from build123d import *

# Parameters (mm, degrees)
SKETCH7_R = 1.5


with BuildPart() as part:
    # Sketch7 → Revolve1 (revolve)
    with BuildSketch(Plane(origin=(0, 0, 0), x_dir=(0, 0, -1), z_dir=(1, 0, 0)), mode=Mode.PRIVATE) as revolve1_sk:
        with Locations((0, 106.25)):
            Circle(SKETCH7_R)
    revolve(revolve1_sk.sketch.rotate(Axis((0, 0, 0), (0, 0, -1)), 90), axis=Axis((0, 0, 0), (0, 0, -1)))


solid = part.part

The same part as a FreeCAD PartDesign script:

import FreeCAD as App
import Part
import Sketcher
from FreeCAD import Vector
Q = App.Units.Quantity

doc = App.newDocument("Part")
body = doc.addObject("PartDesign::Body", "Body")

# Sketch on YZ plane
sketch1 = body.newObject("Sketcher::SketchObject", "Sketch")
sketch1.AttachmentSupport = (doc.getObject("YZ_Plane"), [""])
sketch1.MapMode = "FlatFace"
sketch1.addGeometry(Part.Circle(Vector(106.2, 0, 0), Vector(0, 0, 1), 1.5), False)
sketch1.addConstraint(Sketcher.Constraint("PointOnObject", 0, 3, -1))
sketch1.addConstraint(Sketcher.Constraint("Diameter", 0, Q("3 mm")))
sketch1.addConstraint(Sketcher.Constraint("DistanceX", -1, 1, 0, 3, Q("106.25 mm")))
revolution = body.newObject("PartDesign::Revolution", "Revolution")
revolution.Profile = sketch1
revolution.ReferenceAxis = (sketch1, ["V_Axis"])
revolution.Angle = 360

doc.recompute()
